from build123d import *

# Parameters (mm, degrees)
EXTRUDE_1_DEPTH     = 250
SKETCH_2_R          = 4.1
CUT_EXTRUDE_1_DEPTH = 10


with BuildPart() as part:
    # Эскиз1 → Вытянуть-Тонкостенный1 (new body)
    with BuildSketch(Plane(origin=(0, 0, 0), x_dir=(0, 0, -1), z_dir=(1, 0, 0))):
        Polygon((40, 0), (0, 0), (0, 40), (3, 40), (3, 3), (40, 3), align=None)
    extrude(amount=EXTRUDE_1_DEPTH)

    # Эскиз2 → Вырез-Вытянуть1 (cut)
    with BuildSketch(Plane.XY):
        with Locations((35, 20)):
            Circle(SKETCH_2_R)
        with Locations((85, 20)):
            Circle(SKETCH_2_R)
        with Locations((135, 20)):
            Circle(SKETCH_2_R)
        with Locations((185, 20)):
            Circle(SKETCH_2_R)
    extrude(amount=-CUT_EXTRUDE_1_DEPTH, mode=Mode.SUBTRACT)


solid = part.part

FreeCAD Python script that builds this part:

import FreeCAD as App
import Part
import Sketcher

V = App.Vector
Q = App.Units.Quantity

doc = App.newDocument("Part")
params = doc.addObject("Spreadsheet::Sheet", "Params")
for row, (alias, value) in enumerate([
    ("sketch1_width", "3 mm"),
    ("sketch1_width2", "37 mm"),
    ("pad1_length", "250 mm"),
    ("sketch2_diameter", "8.2 mm"),
    ("pocket1_length", "10 mm"),
], start=1):
    params.set(f"A{row}", alias)
    params.set(f"B{row}", "=" + value)
    params.setAlias(f"B{row}", alias)

body = doc.addObject("PartDesign::Body", "Body")

sketch1 = body.newObject("Sketcher::SketchObject", "Sketch")
sketch1.AttachmentSupport = (doc.getObject("YZ_Plane"), [""])
sketch1.MapMode = "FlatFace"
sketch1.addGeometry([
    Part.LineSegment(V(0, 0, 0), V(0, -40, 0)),
    Part.LineSegment(V(0, -40, 0), V(3, -40, 0)),
    Part.LineSegment(V(3, -40, 0), V(3, -3, 0)),
    Part.LineSegment(V(3, -3, 0), V(40, -3, 0)),
    Part.LineSegment(V(40, -3, 0), V(40, 0, 0)),
    Part.LineSegment(V(40, 0, 0), V(0, 0, 0)),
], False)
sketch1.addConstraint([
    Sketcher.Constraint("Coincident", 0, 2, 1, 1),
    Sketcher.Constraint("Coincident", 1, 2, 2, 1),
    Sketcher.Constraint("Coincident", 2, 2, 3, 1),
    Sketcher.Constraint("Coincident", 3, 2, 4, 1),
    Sketcher.Constraint("Coincident", 4, 2, 5, 1),
    Sketcher.Constraint("Coincident", 5, 2, 0, 1),
    Sketcher.Constraint("Vertical", 0),
    Sketcher.Constraint("Horizontal", 1),
    Sketcher.Constraint("Vertical", 2),
    Sketcher.Constraint("Horizontal", 3),
    Sketcher.Constraint("Vertical", 4),
    Sketcher.Constraint("Horizontal", 5),
    Sketcher.Constraint("Coincident", 5, 2, -1, 1),
    Sketcher.Constraint("Equal", 5, 0),
    Sketcher.Constraint("Equal", 3, 2),
    Sketcher.Constraint("DistanceX", 1, 1, 1, 2, Q("3 mm")),
    Sketcher.Constraint("DistanceX", 3, 1, 3, 2, Q("37 mm")),
])
sketch1.setExpression("Constraints[15]", "Params.sketch1_width")
sketch1.setExpression("Constraints[16]", "Params.sketch1_width2")
pad1 = body.newObject("PartDesign::Pad", "Pad")
pad1.Profile = sketch1
pad1.setExpression("Length", "Params.pad1_length")

sketch2 = body.newObject("Sketcher::SketchObject", "Sketch001")
sketch2.AttachmentSupport = (doc.getObject("XY_Plane"), [""])
sketch2.MapMode = "FlatFace"
sketch2.addGeometry([
    Part.Circle(V(35, 20, 0), V(0, 0, 1), 4.1),
    Part.Circle(V(85, 20, 0), V(0, 0, 1), 4.1),
    Part.Circle(V(135, 20, 0), V(0, 0, 1), 4.1),
    Part.Circle(V(185, 20, 0), V(0, 0, 1), 4.1),
], False)
sketch2.addConstraint([
    Sketcher.Constraint("Equal", 0, 1),
    Sketcher.Constraint("Equal", 1, 2),
    Sketcher.Constraint("Equal", 2, 3),
    Sketcher.Constraint("Horizontal", 0, 3, 1, 3),
    Sketcher.Constraint("Horizontal", 1, 3, 2, 3),
    Sketcher.Constraint("Horizontal", 2, 3, 3, 3),
    Sketcher.Constraint("Diameter", 0, Q("8.2 mm")),
    Sketcher.Constraint("DistanceX", -1, 1, 0, 3, Q("35 mm")),
    Sketcher.Constraint("DistanceY", -1, 1, 0, 3, Q("20 mm")),
    Sketcher.Constraint("DistanceX", -1, 1, 1, 3, Q("85 mm")),
    Sketcher.Constraint("DistanceX", -1, 1, 2, 3, Q("135 mm")),
    Sketcher.Constraint("DistanceX", -1, 1, 3, 3, Q("185 mm")),
])
sketch2.setExpression("Constraints[6]", "Params.sketch2_diameter")
pocket1 = body.newObject("PartDesign::Pocket", "Pocket")
pocket1.Profile = sketch2
pocket1.setExpression("Length", "Params.pocket1_length")

doc.recompute()
